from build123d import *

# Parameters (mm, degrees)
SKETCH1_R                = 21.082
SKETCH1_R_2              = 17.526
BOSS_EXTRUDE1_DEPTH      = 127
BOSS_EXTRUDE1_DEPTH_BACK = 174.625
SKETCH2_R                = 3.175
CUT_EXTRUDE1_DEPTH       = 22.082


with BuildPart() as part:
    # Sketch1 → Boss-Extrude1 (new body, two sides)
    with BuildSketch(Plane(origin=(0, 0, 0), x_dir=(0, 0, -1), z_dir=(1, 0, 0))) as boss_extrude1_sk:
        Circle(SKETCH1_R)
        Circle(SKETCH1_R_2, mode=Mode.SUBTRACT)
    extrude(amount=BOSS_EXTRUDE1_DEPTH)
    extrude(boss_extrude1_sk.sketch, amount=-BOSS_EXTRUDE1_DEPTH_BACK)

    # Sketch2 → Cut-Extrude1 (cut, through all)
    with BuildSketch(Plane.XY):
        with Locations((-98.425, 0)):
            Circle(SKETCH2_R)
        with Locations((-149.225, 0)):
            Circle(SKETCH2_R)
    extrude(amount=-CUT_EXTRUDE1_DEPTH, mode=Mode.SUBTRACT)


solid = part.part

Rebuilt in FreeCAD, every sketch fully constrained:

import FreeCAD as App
import Part
import Sketcher
Q = App.Units.Quantity

doc = App.newDocument("Part")
body = doc.addObject("PartDesign::Body", "Body")

sketch1 = body.newObject("Sketcher::SketchObject", "Sketch")
sketch1.AttachmentSupport = (doc.getObject("YZ_Plane"), [""])
sketch1.MapMode = "FlatFace"
sketch1.addGeometry([
    Part.Circle(App.Vector(0, 0, 0), App.Vector(0, 0, 1), 21),
    Part.Circle(App.Vector(0, 0, 0), App.Vector(0, 0, 1), 18),
], False)
sketch1.addConstraint([
    Sketcher.Constraint("Coincident", 0, 3, -1, 1),
    Sketcher.Constraint("Coincident", 1, 3, -1, 1),
    Sketcher.Constraint("Diameter", 0, Q("1.66 in")),
    Sketcher.Constraint("Diameter", 1, Q("1.38 in")),
])
pad1 = body.newObject("PartDesign::Pad", "Pad")
pad1.Profile = sketch1
pad1.Type = "TwoLengths"
pad1.Length = Q("5 in")
pad1.Length2 = Q("6.875 in")

sketch2 = body.newObject("Sketcher::SketchObject", "Sketch001")
sketch2.AttachmentSupport = (doc.getObject("XY_Plane"), [""])
sketch2.MapMode = "FlatFace"
sketch2.addGeometry([
    Part.Circle(App.Vector(-98.4, 0, 0), App.Vector(0, 0, 1), 3.2),
    Part.Circle(App.Vector(-149.2, 0, 0), App.Vector(0, 0, 1), 3.2),
], False)
sketch2.addConstraint([
    Sketcher.Constraint("Equal", 0, 1),
    Sketcher.Constraint("PointOnObject", 0, 3, -1),
    Sketcher.Constraint("PointOnObject", 1, 3, -1),
    Sketcher.Constraint("Diameter", 0, Q("0.25 in")),
    Sketcher.Constraint("DistanceX", 1, 3, 0, 3, Q("2 in")),
    Sketcher.Constraint("DistanceX", 0, 3, -1, 1, Q("3.875 in")),
])
pocket1 = body.newObject("PartDesign::Pocket", "Pocket")
pocket1.Profile = sketch2
pocket1.Type = "ThroughAll"

doc.recompute()
